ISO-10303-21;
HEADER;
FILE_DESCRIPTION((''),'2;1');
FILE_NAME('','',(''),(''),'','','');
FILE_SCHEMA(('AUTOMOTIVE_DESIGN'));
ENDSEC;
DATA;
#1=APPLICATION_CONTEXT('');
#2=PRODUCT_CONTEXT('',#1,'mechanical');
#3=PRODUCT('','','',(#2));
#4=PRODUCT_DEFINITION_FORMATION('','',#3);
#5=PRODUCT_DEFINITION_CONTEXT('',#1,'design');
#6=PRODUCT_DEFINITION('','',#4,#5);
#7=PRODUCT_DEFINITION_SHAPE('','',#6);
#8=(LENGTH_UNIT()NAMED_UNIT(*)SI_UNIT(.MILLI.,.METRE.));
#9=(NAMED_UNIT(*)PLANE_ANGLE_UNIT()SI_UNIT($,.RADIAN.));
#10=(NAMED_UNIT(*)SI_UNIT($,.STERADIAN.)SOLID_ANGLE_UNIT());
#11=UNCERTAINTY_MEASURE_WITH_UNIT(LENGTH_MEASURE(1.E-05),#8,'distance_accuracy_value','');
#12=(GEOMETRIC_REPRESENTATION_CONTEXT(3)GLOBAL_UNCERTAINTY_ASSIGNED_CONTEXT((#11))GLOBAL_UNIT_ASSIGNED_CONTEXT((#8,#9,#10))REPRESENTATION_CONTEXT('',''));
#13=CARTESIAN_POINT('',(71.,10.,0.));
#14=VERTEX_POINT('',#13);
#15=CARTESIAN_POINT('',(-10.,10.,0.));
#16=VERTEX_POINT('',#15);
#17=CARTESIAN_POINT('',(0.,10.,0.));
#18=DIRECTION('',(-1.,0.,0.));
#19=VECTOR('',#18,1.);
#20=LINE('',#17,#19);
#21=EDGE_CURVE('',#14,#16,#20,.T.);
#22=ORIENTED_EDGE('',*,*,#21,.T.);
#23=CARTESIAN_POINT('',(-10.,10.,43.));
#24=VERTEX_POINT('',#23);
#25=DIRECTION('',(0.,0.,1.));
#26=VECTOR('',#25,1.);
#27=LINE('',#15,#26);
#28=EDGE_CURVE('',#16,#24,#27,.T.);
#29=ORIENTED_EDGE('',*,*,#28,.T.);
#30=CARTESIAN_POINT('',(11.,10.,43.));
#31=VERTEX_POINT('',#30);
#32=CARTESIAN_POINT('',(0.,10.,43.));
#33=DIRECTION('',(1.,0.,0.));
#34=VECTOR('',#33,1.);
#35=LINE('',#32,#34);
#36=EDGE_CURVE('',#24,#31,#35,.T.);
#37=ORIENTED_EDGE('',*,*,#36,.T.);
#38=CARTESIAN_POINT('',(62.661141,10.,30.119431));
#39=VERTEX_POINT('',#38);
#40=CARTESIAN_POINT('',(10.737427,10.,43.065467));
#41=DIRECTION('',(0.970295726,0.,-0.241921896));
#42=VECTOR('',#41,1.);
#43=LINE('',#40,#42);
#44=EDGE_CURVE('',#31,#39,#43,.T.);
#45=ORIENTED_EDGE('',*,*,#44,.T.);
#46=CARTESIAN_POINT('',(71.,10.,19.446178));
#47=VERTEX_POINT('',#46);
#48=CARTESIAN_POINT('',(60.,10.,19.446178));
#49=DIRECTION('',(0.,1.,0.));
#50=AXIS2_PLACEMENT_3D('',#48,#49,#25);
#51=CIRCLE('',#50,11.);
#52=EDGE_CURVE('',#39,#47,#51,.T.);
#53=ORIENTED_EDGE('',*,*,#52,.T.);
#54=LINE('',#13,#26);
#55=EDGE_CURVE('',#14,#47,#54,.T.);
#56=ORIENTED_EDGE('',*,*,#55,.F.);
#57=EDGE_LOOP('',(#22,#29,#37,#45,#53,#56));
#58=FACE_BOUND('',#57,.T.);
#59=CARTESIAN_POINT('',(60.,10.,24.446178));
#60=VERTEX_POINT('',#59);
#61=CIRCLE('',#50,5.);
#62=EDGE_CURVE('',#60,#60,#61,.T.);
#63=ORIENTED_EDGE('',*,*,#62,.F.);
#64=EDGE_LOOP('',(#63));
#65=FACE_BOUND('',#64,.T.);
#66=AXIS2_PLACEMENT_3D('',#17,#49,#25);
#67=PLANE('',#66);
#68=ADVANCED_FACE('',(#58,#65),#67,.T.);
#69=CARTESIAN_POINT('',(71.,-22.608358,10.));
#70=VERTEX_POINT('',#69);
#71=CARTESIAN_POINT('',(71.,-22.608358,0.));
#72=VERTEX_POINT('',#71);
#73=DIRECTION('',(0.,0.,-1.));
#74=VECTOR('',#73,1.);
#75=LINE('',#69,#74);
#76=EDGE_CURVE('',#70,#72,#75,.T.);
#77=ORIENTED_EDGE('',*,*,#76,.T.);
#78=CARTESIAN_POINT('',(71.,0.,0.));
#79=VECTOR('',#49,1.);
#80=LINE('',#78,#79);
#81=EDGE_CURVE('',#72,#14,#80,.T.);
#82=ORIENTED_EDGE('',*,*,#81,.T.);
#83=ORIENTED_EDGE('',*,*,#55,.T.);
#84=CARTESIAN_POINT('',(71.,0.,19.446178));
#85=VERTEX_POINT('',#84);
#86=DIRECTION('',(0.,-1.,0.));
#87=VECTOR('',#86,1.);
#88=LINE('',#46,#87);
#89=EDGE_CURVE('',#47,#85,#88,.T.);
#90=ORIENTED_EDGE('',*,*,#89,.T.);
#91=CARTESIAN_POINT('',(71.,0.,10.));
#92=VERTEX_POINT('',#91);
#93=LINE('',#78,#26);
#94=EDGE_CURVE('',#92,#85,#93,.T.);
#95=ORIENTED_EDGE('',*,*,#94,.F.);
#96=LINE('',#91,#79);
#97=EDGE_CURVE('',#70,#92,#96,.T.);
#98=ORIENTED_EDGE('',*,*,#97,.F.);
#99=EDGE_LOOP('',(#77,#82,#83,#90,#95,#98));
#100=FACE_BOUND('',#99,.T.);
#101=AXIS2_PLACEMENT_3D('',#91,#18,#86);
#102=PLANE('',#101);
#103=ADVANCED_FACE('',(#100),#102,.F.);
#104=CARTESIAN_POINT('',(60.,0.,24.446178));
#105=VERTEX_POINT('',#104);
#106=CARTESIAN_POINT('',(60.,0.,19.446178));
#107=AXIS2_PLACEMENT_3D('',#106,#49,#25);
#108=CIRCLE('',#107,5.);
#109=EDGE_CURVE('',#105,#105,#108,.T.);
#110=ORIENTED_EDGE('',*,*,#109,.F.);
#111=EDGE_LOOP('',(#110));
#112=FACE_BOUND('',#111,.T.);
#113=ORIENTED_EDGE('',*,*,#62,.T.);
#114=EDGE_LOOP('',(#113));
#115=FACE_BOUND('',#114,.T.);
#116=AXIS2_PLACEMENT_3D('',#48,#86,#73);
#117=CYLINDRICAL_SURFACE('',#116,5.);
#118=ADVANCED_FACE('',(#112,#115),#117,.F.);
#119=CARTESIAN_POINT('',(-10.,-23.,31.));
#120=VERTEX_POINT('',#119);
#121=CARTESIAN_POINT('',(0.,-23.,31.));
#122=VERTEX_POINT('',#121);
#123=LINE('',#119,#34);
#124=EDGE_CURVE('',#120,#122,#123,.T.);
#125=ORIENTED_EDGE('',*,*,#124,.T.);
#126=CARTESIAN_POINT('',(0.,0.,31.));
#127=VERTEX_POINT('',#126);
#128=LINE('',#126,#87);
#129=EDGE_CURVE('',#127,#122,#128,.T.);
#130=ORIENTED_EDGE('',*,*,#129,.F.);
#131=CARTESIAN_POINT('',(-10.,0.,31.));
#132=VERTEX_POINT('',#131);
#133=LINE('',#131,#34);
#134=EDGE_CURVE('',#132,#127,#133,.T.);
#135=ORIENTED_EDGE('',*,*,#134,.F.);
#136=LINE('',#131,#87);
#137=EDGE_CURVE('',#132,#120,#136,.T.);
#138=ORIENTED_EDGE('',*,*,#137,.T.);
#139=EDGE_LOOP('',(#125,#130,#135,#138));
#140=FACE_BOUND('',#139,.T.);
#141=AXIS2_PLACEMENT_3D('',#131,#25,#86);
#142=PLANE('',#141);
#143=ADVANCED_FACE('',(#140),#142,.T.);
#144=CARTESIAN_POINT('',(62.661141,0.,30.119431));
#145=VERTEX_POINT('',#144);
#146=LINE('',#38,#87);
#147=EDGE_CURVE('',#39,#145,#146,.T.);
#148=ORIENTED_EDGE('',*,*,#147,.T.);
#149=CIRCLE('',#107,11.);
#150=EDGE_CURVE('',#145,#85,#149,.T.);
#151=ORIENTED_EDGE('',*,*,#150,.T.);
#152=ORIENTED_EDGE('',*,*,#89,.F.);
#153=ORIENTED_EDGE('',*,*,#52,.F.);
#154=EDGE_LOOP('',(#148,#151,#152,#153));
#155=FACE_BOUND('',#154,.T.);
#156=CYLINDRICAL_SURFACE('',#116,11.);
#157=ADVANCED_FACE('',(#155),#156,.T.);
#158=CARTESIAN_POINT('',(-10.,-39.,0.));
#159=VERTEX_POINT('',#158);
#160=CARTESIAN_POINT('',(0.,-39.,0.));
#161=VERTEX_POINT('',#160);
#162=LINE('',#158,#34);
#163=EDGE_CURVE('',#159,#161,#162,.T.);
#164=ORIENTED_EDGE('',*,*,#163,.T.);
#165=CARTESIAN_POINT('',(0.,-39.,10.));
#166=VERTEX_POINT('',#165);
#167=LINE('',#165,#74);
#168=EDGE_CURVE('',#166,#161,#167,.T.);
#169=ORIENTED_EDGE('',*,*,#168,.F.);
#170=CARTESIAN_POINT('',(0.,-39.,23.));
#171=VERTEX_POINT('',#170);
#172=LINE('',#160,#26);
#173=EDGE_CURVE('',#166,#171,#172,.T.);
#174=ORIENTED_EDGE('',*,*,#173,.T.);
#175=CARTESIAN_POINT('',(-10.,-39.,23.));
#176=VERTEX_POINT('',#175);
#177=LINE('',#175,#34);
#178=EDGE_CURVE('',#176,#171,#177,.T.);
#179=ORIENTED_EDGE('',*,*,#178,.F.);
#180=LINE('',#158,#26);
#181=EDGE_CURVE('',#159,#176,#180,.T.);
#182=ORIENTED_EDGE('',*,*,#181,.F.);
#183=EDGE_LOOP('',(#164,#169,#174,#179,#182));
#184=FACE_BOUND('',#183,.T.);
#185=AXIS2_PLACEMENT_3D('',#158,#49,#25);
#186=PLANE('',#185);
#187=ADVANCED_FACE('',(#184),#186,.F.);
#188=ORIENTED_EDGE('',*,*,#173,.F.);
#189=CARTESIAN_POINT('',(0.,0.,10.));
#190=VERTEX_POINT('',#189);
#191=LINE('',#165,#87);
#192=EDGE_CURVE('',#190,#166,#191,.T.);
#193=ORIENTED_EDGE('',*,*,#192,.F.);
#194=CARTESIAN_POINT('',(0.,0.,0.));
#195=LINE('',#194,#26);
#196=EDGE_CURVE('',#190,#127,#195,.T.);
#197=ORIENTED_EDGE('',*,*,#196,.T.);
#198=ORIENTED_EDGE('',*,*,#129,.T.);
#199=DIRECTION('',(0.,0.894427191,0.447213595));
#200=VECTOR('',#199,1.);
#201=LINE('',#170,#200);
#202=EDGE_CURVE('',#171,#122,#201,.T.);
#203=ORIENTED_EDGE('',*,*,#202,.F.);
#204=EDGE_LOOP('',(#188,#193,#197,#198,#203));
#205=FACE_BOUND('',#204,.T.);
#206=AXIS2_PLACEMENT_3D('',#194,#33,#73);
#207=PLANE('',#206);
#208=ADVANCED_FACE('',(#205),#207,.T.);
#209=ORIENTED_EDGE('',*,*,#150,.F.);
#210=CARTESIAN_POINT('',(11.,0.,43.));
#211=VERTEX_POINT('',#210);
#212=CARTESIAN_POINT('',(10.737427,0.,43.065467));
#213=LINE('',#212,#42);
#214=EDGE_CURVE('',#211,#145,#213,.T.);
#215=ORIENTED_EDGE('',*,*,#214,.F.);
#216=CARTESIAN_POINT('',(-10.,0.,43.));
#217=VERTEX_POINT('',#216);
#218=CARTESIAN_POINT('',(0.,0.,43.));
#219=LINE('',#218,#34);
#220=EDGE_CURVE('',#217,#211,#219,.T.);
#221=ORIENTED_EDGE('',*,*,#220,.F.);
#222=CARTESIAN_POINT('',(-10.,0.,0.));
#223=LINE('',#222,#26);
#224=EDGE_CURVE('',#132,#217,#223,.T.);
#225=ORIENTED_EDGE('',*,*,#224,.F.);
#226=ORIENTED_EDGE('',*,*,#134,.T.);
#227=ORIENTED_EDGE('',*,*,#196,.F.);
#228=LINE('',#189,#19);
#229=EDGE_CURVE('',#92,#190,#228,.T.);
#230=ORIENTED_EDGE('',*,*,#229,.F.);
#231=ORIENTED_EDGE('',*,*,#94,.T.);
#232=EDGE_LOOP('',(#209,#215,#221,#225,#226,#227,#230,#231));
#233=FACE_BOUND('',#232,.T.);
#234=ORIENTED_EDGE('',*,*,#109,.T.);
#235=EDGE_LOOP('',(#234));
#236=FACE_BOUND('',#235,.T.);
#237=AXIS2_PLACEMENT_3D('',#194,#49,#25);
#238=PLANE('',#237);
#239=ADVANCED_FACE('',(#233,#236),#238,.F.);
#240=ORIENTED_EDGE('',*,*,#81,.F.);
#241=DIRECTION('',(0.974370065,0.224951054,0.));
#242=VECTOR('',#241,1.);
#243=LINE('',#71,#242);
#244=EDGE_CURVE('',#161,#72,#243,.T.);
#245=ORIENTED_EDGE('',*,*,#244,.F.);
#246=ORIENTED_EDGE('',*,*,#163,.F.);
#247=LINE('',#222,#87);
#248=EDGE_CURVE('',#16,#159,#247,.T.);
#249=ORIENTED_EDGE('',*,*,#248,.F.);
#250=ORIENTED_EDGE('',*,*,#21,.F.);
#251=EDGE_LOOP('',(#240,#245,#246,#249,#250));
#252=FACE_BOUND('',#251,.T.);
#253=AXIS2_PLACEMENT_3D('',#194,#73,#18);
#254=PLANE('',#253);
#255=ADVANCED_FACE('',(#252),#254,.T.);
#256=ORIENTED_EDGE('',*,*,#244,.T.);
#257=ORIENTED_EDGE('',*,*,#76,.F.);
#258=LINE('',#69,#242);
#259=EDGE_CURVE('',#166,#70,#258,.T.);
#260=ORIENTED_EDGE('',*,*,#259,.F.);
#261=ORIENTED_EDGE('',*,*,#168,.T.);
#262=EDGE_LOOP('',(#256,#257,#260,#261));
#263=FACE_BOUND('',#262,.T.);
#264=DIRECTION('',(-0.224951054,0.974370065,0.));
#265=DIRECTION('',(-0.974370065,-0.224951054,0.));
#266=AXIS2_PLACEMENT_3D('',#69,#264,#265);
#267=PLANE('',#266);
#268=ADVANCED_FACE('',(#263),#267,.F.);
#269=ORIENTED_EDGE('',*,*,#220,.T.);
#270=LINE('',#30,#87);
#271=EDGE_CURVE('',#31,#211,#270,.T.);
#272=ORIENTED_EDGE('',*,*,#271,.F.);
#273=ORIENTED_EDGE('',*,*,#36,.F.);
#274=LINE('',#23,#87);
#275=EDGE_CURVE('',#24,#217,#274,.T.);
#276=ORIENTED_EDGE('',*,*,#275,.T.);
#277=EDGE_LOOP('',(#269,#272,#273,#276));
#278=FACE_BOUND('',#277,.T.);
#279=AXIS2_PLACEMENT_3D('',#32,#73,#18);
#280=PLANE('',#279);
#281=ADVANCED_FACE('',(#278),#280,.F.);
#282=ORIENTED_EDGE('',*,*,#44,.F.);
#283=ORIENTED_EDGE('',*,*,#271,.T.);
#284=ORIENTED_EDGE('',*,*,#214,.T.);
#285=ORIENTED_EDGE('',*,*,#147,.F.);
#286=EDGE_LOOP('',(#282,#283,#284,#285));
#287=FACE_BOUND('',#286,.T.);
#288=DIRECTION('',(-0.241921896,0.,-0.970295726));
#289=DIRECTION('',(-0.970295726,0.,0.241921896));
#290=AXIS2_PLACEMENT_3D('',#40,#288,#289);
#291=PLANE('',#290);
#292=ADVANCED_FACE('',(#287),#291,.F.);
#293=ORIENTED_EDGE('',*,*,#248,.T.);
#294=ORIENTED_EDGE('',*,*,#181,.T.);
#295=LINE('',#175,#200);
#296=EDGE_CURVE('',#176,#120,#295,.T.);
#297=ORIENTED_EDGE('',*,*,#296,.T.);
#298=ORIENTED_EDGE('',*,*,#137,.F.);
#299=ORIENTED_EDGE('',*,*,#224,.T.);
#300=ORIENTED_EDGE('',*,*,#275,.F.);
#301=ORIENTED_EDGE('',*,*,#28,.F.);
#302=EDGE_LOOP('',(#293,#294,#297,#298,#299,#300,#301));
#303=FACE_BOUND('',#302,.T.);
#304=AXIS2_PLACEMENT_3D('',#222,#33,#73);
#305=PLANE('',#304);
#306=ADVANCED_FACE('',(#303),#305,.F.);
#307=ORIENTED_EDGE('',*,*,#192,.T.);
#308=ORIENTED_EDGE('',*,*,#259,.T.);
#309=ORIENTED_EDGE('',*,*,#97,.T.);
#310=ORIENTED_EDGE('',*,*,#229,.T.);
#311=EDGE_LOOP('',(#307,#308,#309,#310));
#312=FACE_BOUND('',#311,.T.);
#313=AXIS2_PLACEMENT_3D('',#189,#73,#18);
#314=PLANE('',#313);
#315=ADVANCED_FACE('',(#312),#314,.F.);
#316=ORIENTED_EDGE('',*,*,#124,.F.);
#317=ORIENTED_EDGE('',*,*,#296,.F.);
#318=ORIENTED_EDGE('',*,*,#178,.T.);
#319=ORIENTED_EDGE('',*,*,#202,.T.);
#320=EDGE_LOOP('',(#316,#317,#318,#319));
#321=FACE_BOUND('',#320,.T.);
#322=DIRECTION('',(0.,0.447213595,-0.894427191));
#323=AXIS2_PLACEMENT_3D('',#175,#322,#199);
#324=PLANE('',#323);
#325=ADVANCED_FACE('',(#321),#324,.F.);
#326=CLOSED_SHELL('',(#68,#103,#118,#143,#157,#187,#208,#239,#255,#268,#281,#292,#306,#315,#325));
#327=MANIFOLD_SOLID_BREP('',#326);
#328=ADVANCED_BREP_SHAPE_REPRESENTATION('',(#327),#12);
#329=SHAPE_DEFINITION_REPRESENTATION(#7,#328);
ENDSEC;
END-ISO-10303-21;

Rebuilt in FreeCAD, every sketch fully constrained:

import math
import FreeCAD as App
import Part
import Sketcher
from FreeCAD import Vector
Q = App.Units.Quantity


def add_polygon(sketch, points):
    """Adds a closed chain of lines whose ends are joined by coincident constraints."""
    first, n = sketch.GeometryCount, len(points)
    for a, b in zip(points, points[1:] + points[:1]):
        sketch.addGeometry(Part.LineSegment(App.Vector(*a, 0), App.Vector(*b, 0)), False)
    for i in range(n):
        sketch.addConstraint(Sketcher.Constraint("Coincident", first + i, 2, first + (i + 1) % n, 1))

doc = App.newDocument("Part")
body = doc.addObject("PartDesign::Body", "Body")

# Sketch on XY plane
sketch1 = doc.addObject("Sketcher::SketchObject", "Sketch")
body.addObject(sketch1)
sketch1.AttachmentSupport = (doc.XY_Plane, [""])
sketch1.MapMode = "FlatFace"
add_polygon(sketch1, [(71, 0), (0, 0), (0, -39), (71, -23)])  # lines 0-3
sketch1.addConstraint([
    Sketcher.Constraint("Horizontal", 0),
    Sketcher.Constraint("Vertical", 1),
    Sketcher.Constraint("Vertical", 3),
    Sketcher.Constraint("Coincident", 0, 2, -1, 1),
    Sketcher.Constraint("DistanceX", 0, 2, 0, 1, Q("71 mm")),
    Sketcher.Constraint("DistanceY", 1, 2, 1, 1, Q("39 mm")),
    Sketcher.Constraint("Angle", 2, Q("13 deg")),
])
pad1 = doc.addObject("PartDesign::Pad", "Pad")
body.addObject(pad1)
pad1.Profile = sketch1
pad1.Length = 10

# Sketch on YZ plane
sketch2 = doc.addObject("Sketcher::SketchObject", "Sketch001")
body.addObject(sketch2)
sketch2.AttachmentSupport = (doc.YZ_Plane, [""])
sketch2.MapMode = "FlatFace"
add_polygon(sketch2, [(0, 31), (0, 0), (-39, 0), (-39, 23), (-23, 31)])  # lines 0-4
sketch2.addConstraint([
    Sketcher.Constraint("Vertical", 0),
    Sketcher.Constraint("Horizontal", 1),
    Sketcher.Constraint("Vertical", 2),
    Sketcher.Constraint("Horizontal", 4),
    Sketcher.Constraint("Coincident", 0, 2, -1, 1),
    Sketcher.Constraint("Equal", 4, 2),
    Sketcher.Constraint("DistanceX", 1, 2, 1, 1, Q("39 mm")),
    Sketcher.Constraint("DistanceX", 4, 1, 4, 2, Q("23 mm")),
    Sketcher.Constraint("DistanceY", 0, 2, 0, 1, Q("31 mm")),
])
pad2 = doc.addObject("PartDesign::Pad", "Pad001")
body.addObject(pad2)
pad2.Profile = sketch2
pad2.Length = 10
pad2.Reversed = True

# Sketch on XZ plane
sketch3 = doc.addObject("Sketcher::SketchObject", "Sketch002")
body.addObject(sketch3)
sketch3.AttachmentSupport = (doc.XZ_Plane, [""])
sketch3.MapMode = "FlatFace"
sketch3.addGeometry([
    Part.ArcOfCircle(Part.Circle(Vector(60, 19, 0), Vector(0, 0, 1), 11), math.radians(0), math.radians(76)),  # 0
    Part.LineSegment(Vector(71, 19, 0), Vector(71, 0, 0)),  # 1
    Part.LineSegment(Vector(71, 0, 0), Vector(-10, 0, 0)),  # 2
    Part.LineSegment(Vector(-10, 0, 0), Vector(-10, 43, 0)),  # 3
    Part.LineSegment(Vector(-10, 43, 0), Vector(11, 43, 0)),  # 4
    Part.LineSegment(Vector(11, 43, 0), Vector(63, 30, 0)),  # 5
    Part.Circle(Vector(60, 19, 0), Vector(0, 0, 1), 5),  # 6
], False)
sketch3.addConstraint([
    Sketcher.Constraint("Tangent", 0, 1, 1, 1),
    Sketcher.Constraint("Coincident", 1, 2, 2, 1),
    Sketcher.Constraint("Coincident", 2, 2, 3, 1),
    Sketcher.Constraint("Coincident", 3, 2, 4, 1),
    Sketcher.Constraint("Coincident", 4, 2, 5, 1),
    Sketcher.Constraint("Tangent", 5, 2, 0, 2),
    Sketcher.Constraint("Vertical", 1),
    Sketcher.Constraint("Horizontal", 2),
    Sketcher.Constraint("Vertical", 3),
    Sketcher.Constraint("Horizontal", 4),
    Sketcher.Constraint("Coincident", 6, 3, 0, 3),
    Sketcher.Constraint("PointOnObject", 1, 2, -1),
    Sketcher.Constraint("Diameter", 6, Q("10 mm")),
    Sketcher.Constraint("Radius", 0, Q("11 mm")),
    Sketcher.Constraint("DistanceX", 2, 2, 2, 1, Q("81 mm")),
    Sketcher.Constraint("DistanceX", 4, 1, 4, 2, Q("21 mm")),
    Sketcher.Constraint("DistanceY", 3, 1, 3, 2, Q("43 mm")),
    Sketcher.Constraint("Angle", 5, Q("-14 deg")),
    Sketcher.Constraint("DistanceX", -1, 1, 0, 3, Q("60 mm")),
])
pad3 = doc.addObject("PartDesign::Pad", "Pad002")
body.addObject(pad3)
pad3.Profile = sketch3
pad3.Length = 10
pad3.Reversed = True

doc.recompute()
